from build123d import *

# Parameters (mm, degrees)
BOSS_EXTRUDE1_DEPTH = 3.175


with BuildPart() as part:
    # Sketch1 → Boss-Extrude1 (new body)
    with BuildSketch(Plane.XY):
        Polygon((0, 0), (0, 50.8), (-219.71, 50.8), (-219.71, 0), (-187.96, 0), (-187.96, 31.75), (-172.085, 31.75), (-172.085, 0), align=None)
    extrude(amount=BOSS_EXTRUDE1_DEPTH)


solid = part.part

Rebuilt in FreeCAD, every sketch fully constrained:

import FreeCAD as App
import Part
import Sketcher
Q = App.Units.Quantity

doc = App.newDocument("Part")
params = doc.addObject("Spreadsheet::Sheet", "Params")
for row, (alias, value) in enumerate([
    ("sketch1_height", "2 in"),
    ("sketch1_width", "8.65 in"),
    ("sketch1_width2", "1.25 in"),
    ("sketch1_width3", "0.625 in"),
    ("pad1_length", "0.125 in"),
], start=1):
    params.set(f"A{row}", alias)
    params.set(f"B{row}", "=" + value)
    params.setAlias(f"B{row}", alias)

body = doc.addObject("PartDesign::Body", "Body")

# Sketch on XY plane
sketch1 = doc.addObject("Sketcher::SketchObject", "Sketch")
body.addObject(sketch1)
sketch1.AttachmentSupport = (doc.XY_Plane, [""])
sketch1.MapMode = "FlatFace"
sketch1.addGeometry([
    Part.LineSegment(App.Vector(0, 0, 0), App.Vector(0, 51, 0)),  # 0
    Part.LineSegment(App.Vector(0, 51, 0), App.Vector(-220, 51, 0)),  # 1
    Part.LineSegment(App.Vector(-220, 51, 0), App.Vector(-220, 0, 0)),  # 2
    Part.LineSegment(App.Vector(-220, 0, 0), App.Vector(-188, 0, 0)),  # 3
    Part.LineSegment(App.Vector(-188, 0, 0), App.Vector(-188, 32, 0)),  # 4
    Part.LineSegment(App.Vector(-188, 32, 0), App.Vector(-172, 32, 0)),  # 5
    Part.LineSegment(App.Vector(-172, 32, 0), App.Vector(-172, 0, 0)),  # 6
    Part.LineSegment(App.Vector(-172, 0, 0), App.Vector(0, 0, 0)),  # 7
], False)
sketch1.addConstraint([
    Sketcher.Constraint("Coincident", 0, 2, 1, 1),
    Sketcher.Constraint("Coincident", 1, 2, 2, 1),
    Sketcher.Constraint("Coincident", 2, 2, 3, 1),
    Sketcher.Constraint("Coincident", 3, 2, 4, 1),
    Sketcher.Constraint("Coincident", 4, 2, 5, 1),
    Sketcher.Constraint("Coincident", 5, 2, 6, 1),
    Sketcher.Constraint("Coincident", 6, 2, 7, 1),
    Sketcher.Constraint("Coincident", 7, 2, 0, 1),
    Sketcher.Constraint("Vertical", 0),
    Sketcher.Constraint("Horizontal", 1),
    Sketcher.Constraint("Vertical", 2),
    Sketcher.Constraint("Horizontal", 3),
    Sketcher.Constraint("Vertical", 4),
    Sketcher.Constraint("Horizontal", 5),
    Sketcher.Constraint("Vertical", 6),
    Sketcher.Constraint("Horizontal", 7),
    Sketcher.Constraint("Coincident", 7, 2, -1, 1),
    Sketcher.Constraint("PointOnObject", 2, 2, -1),
    Sketcher.Constraint("Equal", 3, 4),
    Sketcher.Constraint("DistanceY", 0, 1, 0, 2, Q("2 in")),
    Sketcher.Constraint("DistanceX", 1, 2, 1, 1, Q("8.65 in")),
    Sketcher.Constraint("DistanceX", 3, 1, 3, 2, Q("1.25 in")),
    Sketcher.Constraint("DistanceX", 5, 1, 5, 2, Q("0.625 in")),
])
sketch1.setExpression("Constraints[19]", "Params.sketch1_height")
sketch1.setExpression("Constraints[20]", "Params.sketch1_width")
sketch1.setExpression("Constraints[21]", "Params.sketch1_width2")
sketch1.setExpression("Constraints[22]", "Params.sketch1_width3")
pad1 = doc.addObject("PartDesign::Pad", "Pad")
body.addObject(pad1)
pad1.Profile = sketch1
pad1.setExpression("Length", "Params.pad1_length")

doc.recompute()
